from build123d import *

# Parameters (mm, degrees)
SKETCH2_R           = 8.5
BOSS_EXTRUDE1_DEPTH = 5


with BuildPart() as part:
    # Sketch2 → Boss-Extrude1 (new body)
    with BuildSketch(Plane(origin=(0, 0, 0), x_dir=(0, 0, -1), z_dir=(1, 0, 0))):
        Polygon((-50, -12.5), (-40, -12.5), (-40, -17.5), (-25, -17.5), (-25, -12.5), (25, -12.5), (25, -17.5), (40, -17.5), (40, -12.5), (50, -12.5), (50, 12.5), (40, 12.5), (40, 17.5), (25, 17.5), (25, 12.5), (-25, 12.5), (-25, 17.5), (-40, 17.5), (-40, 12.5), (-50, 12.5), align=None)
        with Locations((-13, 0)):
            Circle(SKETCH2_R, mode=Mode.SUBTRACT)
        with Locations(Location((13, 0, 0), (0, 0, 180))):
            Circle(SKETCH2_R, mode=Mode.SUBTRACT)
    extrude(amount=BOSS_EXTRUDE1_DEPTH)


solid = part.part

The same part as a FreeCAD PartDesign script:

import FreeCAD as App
import Part
import Sketcher

V = App.Vector


def add_polygon(sketch, points):
    """Adds a closed chain of lines whose ends are joined by coincident constraints."""
    first, n = sketch.GeometryCount, len(points)
    for a, b in zip(points, points[1:] + points[:1]):
        sketch.addGeometry(Part.LineSegment(App.Vector(*a, 0), App.Vector(*b, 0)), False)
    for i in range(n):
        sketch.addConstraint(Sketcher.Constraint("Coincident", first + i, 2, first + (i + 1) % n, 1))

doc = App.newDocument("Part")
body = doc.addObject("PartDesign::Body", "Body")

# Sketch on YZ plane
sketch1 = body.newObject("Sketcher::SketchObject", "Sketch")
sketch1.AttachmentSupport = (doc.getObject("YZ_Plane"), [""])
sketch1.MapMode = "FlatFace"
add_polygon(sketch1, [(-12.5, 50), (-12.5, 40), (-17.5, 40), (-17.5, 25), (-12.5, 25), (-12.5, -25), (-17.5, -25), (-17.5, -40), (-12.5, -40), (-12.5, -50), (12.5, -50), (12.5, -40), (17.5, -40), (17.5, -25), (12.5, -25), (12.5, 25), (17.5, 25), (17.5, 40), (12.5, 40), (12.5, 50)])  # lines 0-19
sketch1.addGeometry(Part.Circle(V(0, 13, 0), V(0, 0, 1), 8.5), False)  # 20
sketch1.addGeometry(Part.Circle(V(0, -13, 0), V(0, 0, 1), 8.5), False)  # 21
sketch1.addConstraint([
    Sketcher.Constraint("Vertical", 0),
    Sketcher.Constraint("Horizontal", 1),
    Sketcher.Constraint("Vertical", 2),
    Sketcher.Constraint("Horizontal", 3),
    Sketcher.Constraint("Vertical", 4),
    Sketcher.Constraint("Horizontal", 5),
    Sketcher.Constraint("Vertical", 6),
    Sketcher.Constraint("Horizontal", 7),
    Sketcher.Constraint("Vertical", 8),
    Sketcher.Constraint("Horizontal", 9),
    Sketcher.Constraint("Vertical", 10),
    Sketcher.Constraint("Horizontal", 11),
    Sketcher.Constraint("Vertical", 12),
    Sketcher.Constraint("Horizontal", 13),
    Sketcher.Constraint("Vertical", 14),
    Sketcher.Constraint("Horizontal", 15),
    Sketcher.Constraint("Vertical", 16),
    Sketcher.Constraint("Horizontal", 17),
    Sketcher.Constraint("Vertical", 18),
    Sketcher.Constraint("Horizontal", 19),
    Sketcher.Constraint("Equal", 20, 21),
    Sketcher.Constraint("Symmetric", 20, 3, 21, 3, -1, 1),
    Sketcher.Constraint("Symmetric", 0, 2, 10, 2, -1, 1),
    Sketcher.Constraint("Symmetric", 2, 2, 12, 2, -1, 1),
    Sketcher.Constraint("Symmetric", 4, 2, 14, 2, -1, 1),
    Sketcher.Constraint("Symmetric", 6, 2, 16, 2, -1, 1),
    Sketcher.Constraint("Symmetric", 8, 2, 18, 2, -1, 1),
    Sketcher.Constraint("Symmetric", 7, 2, 10, 2, -2),
    Sketcher.Constraint("Symmetric", 5, 2, 12, 2, -2),
    Sketcher.Constraint("PointOnObject", 20, 3, -2),
    Sketcher.Constraint("Vertical", 0, 2, 3, 2),
    Sketcher.Constraint("Diameter", 20, 17.0),
    Sketcher.Constraint("DistanceX", 1, 2, 1, 1, 5.0),
    Sketcher.Constraint("DistanceX", 9, 1, 9, 2, 25.0),
    Sketcher.Constraint("DistanceY", 0, 2, 0, 1, 10.0),
    Sketcher.Constraint("DistanceY", 2, 2, 2, 1, 15.0),
    Sketcher.Constraint("DistanceY", 4, 2, 4, 1, 50.0),
    Sketcher.Constraint("DistanceY", -1, 1, 20, 3, 13.0),
])
pad1 = body.newObject("PartDesign::Pad", "Pad")
pad1.Profile = sketch1
pad1.Length = 5

doc.recompute()
